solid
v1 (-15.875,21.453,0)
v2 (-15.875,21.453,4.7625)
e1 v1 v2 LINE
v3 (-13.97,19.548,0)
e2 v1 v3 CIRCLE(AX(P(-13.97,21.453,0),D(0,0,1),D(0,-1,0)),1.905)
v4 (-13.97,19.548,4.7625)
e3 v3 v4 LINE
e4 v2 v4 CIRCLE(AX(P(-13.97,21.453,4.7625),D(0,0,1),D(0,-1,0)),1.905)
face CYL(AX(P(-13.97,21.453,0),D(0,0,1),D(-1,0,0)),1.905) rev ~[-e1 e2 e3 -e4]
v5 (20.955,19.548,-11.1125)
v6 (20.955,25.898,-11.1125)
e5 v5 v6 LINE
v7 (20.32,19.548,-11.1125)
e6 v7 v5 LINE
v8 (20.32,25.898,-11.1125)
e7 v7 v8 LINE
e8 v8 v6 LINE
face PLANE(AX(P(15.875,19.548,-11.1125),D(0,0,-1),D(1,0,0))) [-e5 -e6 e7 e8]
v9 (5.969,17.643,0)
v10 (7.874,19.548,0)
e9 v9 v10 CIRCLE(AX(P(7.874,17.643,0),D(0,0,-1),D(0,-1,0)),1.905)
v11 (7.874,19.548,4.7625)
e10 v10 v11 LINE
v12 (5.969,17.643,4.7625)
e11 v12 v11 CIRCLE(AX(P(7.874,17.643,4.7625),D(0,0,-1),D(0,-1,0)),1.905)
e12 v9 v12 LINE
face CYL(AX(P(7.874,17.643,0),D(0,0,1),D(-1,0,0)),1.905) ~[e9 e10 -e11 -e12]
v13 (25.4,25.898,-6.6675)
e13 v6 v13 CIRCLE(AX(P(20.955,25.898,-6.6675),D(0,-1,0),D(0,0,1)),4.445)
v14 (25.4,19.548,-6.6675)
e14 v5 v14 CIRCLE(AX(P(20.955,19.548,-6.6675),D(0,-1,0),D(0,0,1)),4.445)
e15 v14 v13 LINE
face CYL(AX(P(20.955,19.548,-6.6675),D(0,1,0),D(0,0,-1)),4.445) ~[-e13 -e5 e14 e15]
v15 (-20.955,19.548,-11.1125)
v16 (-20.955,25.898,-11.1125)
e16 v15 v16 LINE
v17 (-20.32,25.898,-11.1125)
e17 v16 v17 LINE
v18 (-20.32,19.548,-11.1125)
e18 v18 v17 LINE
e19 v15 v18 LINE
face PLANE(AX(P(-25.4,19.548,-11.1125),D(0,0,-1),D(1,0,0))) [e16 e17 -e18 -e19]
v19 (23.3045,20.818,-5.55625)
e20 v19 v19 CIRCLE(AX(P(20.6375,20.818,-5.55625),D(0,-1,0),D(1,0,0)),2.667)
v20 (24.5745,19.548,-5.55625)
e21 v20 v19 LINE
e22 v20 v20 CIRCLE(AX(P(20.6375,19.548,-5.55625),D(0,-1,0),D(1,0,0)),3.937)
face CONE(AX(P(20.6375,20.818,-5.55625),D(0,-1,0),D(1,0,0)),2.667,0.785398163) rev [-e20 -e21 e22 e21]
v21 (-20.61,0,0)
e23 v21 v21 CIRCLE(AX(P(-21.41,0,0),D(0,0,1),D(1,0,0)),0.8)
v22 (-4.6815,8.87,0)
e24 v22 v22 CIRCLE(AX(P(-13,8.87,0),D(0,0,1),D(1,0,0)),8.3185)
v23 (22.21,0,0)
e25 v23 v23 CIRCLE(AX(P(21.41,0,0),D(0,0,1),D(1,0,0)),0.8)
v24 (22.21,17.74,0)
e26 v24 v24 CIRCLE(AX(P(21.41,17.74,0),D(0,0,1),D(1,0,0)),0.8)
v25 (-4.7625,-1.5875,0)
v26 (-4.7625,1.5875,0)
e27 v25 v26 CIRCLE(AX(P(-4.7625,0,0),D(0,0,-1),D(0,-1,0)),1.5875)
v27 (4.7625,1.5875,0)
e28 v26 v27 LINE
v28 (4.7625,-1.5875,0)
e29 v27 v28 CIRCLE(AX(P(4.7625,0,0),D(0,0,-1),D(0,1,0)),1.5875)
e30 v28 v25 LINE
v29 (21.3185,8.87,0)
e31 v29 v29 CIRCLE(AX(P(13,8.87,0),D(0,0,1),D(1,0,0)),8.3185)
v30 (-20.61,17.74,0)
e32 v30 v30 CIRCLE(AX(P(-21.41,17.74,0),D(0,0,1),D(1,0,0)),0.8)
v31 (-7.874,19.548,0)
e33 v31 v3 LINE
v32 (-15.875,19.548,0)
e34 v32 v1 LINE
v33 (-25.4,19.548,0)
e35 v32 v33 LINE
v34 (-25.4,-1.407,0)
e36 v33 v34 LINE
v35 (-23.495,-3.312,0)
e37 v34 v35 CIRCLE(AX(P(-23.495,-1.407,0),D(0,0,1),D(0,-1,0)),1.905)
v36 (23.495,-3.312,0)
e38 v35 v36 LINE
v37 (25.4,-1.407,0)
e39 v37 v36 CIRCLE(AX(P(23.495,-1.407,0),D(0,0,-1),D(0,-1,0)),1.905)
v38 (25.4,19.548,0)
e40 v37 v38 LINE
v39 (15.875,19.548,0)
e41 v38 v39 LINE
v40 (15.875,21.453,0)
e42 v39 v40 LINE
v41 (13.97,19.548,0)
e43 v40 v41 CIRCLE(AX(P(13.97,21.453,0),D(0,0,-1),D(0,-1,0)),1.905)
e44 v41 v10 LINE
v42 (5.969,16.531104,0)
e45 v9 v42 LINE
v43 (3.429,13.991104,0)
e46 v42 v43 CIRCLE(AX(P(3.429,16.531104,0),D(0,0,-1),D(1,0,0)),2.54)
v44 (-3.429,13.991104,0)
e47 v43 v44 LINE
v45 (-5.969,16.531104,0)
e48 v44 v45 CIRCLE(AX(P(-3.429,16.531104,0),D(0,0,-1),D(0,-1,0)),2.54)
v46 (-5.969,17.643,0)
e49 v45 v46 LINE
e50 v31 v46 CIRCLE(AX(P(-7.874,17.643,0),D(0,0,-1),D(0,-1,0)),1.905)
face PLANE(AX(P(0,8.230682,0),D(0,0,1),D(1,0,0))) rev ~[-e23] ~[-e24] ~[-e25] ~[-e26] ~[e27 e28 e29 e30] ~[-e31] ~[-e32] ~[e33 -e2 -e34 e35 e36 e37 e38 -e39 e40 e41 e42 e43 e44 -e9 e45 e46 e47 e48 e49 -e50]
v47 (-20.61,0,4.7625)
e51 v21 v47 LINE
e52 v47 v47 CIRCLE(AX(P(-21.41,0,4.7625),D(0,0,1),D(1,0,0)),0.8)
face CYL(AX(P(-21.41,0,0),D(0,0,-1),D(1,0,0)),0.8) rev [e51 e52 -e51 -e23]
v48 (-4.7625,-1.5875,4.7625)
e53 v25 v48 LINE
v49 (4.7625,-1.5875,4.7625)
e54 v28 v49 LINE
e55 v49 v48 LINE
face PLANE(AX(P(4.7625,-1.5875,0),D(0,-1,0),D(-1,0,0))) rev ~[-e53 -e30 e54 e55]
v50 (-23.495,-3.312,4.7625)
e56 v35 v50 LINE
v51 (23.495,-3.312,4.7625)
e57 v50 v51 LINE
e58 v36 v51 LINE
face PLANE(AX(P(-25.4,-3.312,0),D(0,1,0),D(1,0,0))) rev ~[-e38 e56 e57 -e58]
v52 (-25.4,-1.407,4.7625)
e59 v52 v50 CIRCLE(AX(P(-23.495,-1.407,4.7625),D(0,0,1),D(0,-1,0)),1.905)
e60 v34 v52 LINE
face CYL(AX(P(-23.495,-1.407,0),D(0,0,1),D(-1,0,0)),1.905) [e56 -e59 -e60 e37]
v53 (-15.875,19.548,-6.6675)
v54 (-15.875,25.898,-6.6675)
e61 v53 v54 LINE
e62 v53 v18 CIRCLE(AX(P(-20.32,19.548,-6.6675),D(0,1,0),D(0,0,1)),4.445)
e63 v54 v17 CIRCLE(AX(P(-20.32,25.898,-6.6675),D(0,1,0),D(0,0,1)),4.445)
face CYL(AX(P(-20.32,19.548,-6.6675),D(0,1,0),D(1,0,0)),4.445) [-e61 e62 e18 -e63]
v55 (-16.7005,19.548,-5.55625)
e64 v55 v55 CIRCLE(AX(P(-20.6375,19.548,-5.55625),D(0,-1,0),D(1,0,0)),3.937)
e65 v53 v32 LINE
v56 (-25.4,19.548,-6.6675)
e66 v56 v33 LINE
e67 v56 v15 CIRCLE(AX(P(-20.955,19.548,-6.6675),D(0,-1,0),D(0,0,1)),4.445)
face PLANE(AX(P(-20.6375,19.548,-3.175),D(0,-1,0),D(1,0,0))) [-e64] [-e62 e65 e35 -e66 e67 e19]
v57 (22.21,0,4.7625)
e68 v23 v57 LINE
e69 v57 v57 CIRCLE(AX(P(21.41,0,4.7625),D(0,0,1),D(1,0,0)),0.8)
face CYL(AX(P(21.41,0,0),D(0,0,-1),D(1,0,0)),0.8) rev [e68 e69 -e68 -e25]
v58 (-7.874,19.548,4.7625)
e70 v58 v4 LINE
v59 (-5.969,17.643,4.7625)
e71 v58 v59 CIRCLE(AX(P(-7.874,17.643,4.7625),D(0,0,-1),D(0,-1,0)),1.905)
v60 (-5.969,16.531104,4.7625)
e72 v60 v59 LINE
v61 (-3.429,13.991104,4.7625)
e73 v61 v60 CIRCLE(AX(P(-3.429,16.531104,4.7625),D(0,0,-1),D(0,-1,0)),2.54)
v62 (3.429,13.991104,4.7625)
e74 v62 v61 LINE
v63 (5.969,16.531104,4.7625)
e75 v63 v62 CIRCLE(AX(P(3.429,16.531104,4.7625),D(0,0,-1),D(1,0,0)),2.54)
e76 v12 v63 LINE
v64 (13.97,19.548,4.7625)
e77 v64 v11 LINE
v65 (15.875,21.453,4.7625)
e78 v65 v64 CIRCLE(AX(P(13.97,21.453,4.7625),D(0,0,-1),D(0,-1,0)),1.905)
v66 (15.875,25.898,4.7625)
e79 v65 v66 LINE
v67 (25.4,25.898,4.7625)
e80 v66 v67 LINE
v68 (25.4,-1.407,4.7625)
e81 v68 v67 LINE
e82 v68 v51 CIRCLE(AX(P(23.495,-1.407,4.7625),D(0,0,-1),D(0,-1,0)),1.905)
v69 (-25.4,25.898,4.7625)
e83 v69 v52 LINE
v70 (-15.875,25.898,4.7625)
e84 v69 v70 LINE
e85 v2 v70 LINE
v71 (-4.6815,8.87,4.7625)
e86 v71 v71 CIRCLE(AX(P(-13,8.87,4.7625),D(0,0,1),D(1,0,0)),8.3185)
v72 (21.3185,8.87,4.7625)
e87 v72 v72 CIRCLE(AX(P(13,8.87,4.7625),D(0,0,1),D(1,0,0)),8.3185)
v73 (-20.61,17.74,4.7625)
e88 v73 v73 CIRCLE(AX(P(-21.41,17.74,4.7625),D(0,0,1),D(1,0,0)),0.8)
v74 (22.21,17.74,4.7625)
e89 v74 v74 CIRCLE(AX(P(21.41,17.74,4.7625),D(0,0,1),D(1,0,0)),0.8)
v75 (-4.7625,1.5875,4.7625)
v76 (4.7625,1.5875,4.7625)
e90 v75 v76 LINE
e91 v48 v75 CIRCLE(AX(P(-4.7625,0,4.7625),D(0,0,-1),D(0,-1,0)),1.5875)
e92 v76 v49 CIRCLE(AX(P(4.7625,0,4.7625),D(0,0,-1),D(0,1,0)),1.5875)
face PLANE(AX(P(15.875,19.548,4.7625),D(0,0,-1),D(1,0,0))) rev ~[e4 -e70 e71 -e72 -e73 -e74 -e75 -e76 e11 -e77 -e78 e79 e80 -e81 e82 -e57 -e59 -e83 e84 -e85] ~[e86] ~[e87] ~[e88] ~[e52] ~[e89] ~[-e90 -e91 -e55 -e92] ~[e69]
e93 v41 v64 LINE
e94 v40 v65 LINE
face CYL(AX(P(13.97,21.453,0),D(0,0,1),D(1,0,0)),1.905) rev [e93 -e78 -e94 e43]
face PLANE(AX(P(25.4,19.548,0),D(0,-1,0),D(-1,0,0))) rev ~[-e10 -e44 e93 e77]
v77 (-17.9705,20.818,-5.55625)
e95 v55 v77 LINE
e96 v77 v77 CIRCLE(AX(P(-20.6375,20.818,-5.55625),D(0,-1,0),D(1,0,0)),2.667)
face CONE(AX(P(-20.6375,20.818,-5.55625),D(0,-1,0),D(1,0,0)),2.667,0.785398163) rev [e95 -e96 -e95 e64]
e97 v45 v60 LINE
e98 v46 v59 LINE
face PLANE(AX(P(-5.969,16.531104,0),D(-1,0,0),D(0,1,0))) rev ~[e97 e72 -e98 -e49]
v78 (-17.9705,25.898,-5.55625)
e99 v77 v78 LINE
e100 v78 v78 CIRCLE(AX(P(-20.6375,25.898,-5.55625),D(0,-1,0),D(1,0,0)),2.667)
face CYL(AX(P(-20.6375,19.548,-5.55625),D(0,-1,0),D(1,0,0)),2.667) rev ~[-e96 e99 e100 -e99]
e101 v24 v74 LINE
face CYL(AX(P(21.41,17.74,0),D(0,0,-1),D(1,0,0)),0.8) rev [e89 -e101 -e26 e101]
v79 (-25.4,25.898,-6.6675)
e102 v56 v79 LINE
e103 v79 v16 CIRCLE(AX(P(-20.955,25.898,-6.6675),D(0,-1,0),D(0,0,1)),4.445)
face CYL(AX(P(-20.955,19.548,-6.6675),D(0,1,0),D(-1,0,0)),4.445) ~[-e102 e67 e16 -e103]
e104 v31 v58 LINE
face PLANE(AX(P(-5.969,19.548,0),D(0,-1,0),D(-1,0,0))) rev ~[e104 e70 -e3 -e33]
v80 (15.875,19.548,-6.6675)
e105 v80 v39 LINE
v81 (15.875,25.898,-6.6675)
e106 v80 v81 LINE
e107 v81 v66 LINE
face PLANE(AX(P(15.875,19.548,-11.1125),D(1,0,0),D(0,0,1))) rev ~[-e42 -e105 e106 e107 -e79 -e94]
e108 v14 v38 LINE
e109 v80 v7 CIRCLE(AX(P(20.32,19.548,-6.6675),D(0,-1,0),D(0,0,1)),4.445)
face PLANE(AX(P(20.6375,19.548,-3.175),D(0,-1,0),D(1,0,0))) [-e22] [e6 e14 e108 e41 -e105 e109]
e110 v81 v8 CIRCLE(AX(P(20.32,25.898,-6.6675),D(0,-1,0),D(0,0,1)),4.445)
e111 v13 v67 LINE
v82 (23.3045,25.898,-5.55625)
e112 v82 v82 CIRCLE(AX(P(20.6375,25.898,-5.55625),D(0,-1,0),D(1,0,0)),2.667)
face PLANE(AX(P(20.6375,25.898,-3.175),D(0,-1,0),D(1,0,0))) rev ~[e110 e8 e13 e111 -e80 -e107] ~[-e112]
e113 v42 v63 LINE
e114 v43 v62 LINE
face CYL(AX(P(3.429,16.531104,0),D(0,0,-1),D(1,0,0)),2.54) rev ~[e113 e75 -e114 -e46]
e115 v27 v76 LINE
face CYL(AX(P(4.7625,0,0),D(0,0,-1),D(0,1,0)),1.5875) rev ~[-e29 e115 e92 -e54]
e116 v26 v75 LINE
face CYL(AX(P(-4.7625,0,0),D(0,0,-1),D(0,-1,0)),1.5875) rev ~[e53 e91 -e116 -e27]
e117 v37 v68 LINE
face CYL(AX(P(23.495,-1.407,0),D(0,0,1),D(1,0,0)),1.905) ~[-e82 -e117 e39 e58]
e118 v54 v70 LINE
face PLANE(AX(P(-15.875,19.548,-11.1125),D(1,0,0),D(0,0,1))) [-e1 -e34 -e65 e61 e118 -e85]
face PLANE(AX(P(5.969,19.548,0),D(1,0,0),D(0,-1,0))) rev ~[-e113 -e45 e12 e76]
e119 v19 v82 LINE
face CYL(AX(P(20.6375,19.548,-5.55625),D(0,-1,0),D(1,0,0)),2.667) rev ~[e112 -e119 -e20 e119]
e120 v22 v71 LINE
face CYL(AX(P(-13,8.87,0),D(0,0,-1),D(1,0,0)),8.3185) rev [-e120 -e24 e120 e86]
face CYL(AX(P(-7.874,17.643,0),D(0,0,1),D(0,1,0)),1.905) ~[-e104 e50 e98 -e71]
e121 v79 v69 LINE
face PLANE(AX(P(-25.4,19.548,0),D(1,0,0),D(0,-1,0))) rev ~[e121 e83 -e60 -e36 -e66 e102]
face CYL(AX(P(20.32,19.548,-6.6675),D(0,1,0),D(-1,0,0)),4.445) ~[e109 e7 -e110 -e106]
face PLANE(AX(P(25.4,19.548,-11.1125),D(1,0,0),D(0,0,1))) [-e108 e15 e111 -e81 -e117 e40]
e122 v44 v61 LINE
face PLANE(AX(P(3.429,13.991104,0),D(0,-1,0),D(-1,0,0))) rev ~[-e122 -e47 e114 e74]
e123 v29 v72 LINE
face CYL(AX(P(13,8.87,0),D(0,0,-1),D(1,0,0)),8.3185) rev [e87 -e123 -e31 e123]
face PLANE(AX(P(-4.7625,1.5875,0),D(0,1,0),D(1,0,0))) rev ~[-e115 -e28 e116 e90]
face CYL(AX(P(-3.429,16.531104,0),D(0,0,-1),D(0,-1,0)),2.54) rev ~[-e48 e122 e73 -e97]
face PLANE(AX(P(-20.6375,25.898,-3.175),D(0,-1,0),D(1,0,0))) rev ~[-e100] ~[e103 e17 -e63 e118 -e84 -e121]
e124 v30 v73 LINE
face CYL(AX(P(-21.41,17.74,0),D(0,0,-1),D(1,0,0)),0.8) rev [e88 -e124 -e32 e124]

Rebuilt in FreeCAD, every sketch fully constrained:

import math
import FreeCAD as App
import Part
import Sketcher
from FreeCAD import Vector
Q = App.Units.Quantity


def edges_at(feature, points):
    """Names of the edges that pass closest to the given points."""
    edges = feature.Shape.Edges
    near = lambda p: min(range(len(edges)), key=lambda i: edges[i].distToShape(Part.Vertex(*p))[0])
    return sorted({f"Edge{near(p) + 1}" for p in points})


def add_polygon(sketch, points):
    """Adds a closed chain of lines whose ends are joined by coincident constraints."""
    first, n = sketch.GeometryCount, len(points)
    for a, b in zip(points, points[1:] + points[:1]):
        sketch.addGeometry(Part.LineSegment(App.Vector(*a, 0), App.Vector(*b, 0)), False)
    for i in range(n):
        sketch.addConstraint(Sketcher.Constraint("Coincident", first + i, 2, first + (i + 1) % n, 1))

doc = App.newDocument("Part")
body = doc.addObject("PartDesign::Body", "Body")

# Sketch on XY plane
sketch1 = doc.addObject("Sketcher::SketchObject", "Sketch")
body.addObject(sketch1)
sketch1.AttachmentSupport = (doc.XY_Plane, [""])
sketch1.MapMode = "FlatFace"
sketch1.addGeometry(Part.LineSegment(Vector(5.969, 19.548, 0), Vector(5.969, 16.531104, 0)), False)
sketch1.addGeometry(Part.ArcOfCircle(Part.Circle(Vector(3.429, 16.531104, 0), Vector(0, 0, 1), 2.54), math.radians(-90), math.radians(0)), False)
sketch1.addGeometry(Part.LineSegment(Vector(3.429, 13.991104, 0), Vector(-3.429, 13.991104, 0)), False)
sketch1.addGeometry(Part.ArcOfCircle(Part.Circle(Vector(-3.429, 16.531104, 0), Vector(0, 0, 1), 2.54), math.radians(-180), math.radians(-90)), False)
sketch1.addGeometry(Part.LineSegment(Vector(-5.969, 16.531104, 0), Vector(-5.969, 19.548, 0)), False)
sketch1.addGeometry(Part.LineSegment(Vector(-5.969, 19.548, 0), Vector(-25.4, 19.548, 0)), False)
sketch1.addGeometry(Part.LineSegment(Vector(-25.4, 19.548, 0), Vector(-25.4, -3.312, 0)), False)
sketch1.addGeometry(Part.LineSegment(Vector(-25.4, -3.312, 0), Vector(25.4, -3.312, 0)), False)
sketch1.addGeometry(Part.LineSegment(Vector(25.4, -3.312, 0), Vector(25.4, 19.548, 0)), False)
sketch1.addGeometry(Part.LineSegment(Vector(25.4, 19.548, 0), Vector(5.969, 19.548, 0)), False)
sketch1.addGeometry(Part.Circle(Vector(-21.41, 0, 0), Vector(0, 0, 1), 0.8), False)
sketch1.addGeometry(Part.ArcOfCircle(Part.Circle(Vector(-4.7625, 0, 0), Vector(0, 0, 1), 1.5875), math.radians(90), math.radians(270)), False)
sketch1.addGeometry(Part.LineSegment(Vector(-4.7625, 1.5875, 0), Vector(4.7625, 1.5875, 0)), False)
sketch1.addGeometry(Part.ArcOfCircle(Part.Circle(Vector(4.7625, 0, 0), Vector(0, 0, 1), 1.5875), math.radians(-90), math.radians(90)), False)
sketch1.addGeometry(Part.LineSegment(Vector(4.7625, -1.5875, 0), Vector(-4.7625, -1.5875, 0)), False)
sketch1.addGeometry(Part.Circle(Vector(21.41, 0, 0), Vector(0, 0, 1), 0.8), False)
sketch1.addGeometry(Part.Circle(Vector(-13, 8.87, 0), Vector(0, 0, 1), 8.3185), False)
sketch1.addGeometry(Part.Circle(Vector(-21.41, 17.74, 0), Vector(0, 0, 1), 0.8), False)
sketch1.addGeometry(Part.Circle(Vector(13, 8.87, 0), Vector(0, 0, 1), 8.3185), False)
sketch1.addGeometry(Part.Circle(Vector(21.41, 17.74, 0), Vector(0, 0, 1), 0.8), False)
sketch1.addConstraint(Sketcher.Constraint("Tangent", 0, 2, 1, 2))
sketch1.addConstraint(Sketcher.Constraint("Tangent", 1, 1, 2, 1))
sketch1.addConstraint(Sketcher.Constraint("Tangent", 2, 2, 3, 2))
sketch1.addConstraint(Sketcher.Constraint("Tangent", 3, 1, 4, 1))
sketch1.addConstraint(Sketcher.Constraint("Coincident", 4, 2, 5, 1))
sketch1.addConstraint(Sketcher.Constraint("Coincident", 5, 2, 6, 1))
sketch1.addConstraint(Sketcher.Constraint("Coincident", 6, 2, 7, 1))
sketch1.addConstraint(Sketcher.Constraint("Coincident", 7, 2, 8, 1))
sketch1.addConstraint(Sketcher.Constraint("Coincident", 8, 2, 9, 1))
sketch1.addConstraint(Sketcher.Constraint("Coincident", 9, 2, 0, 1))
sketch1.addConstraint(Sketcher.Constraint("Tangent", 11, 1, 12, 1))
sketch1.addConstraint(Sketcher.Constraint("Tangent", 12, 2, 13, 2))
sketch1.addConstraint(Sketcher.Constraint("Tangent", 13, 1, 14, 1))
sketch1.addConstraint(Sketcher.Constraint("Tangent", 14, 2, 11, 2))
sketch1.addConstraint(Sketcher.Constraint("Vertical", 0))
sketch1.addConstraint(Sketcher.Constraint("Horizontal", 2))
sketch1.addConstraint(Sketcher.Constraint("Vertical", 4))
sketch1.addConstraint(Sketcher.Constraint("Horizontal", 5))
sketch1.addConstraint(Sketcher.Constraint("Vertical", 6))
sketch1.addConstraint(Sketcher.Constraint("Horizontal", 7))
sketch1.addConstraint(Sketcher.Constraint("Vertical", 8))
sketch1.addConstraint(Sketcher.Constraint("Horizontal", 9))
sketch1.addConstraint(Sketcher.Constraint("Horizontal", 12))
sketch1.addConstraint(Sketcher.Constraint("Horizontal", 14))
sketch1.addConstraint(Sketcher.Constraint("Equal", 1, 3))
sketch1.addConstraint(Sketcher.Constraint("Equal", 10, 15))
sketch1.addConstraint(Sketcher.Constraint("Equal", 15, 17))
sketch1.addConstraint(Sketcher.Constraint("Equal", 16, 18))
sketch1.addConstraint(Sketcher.Constraint("Equal", 17, 19))
sketch1.addConstraint(Sketcher.Constraint("Symmetric", 11, 3, 13, 3, -1, 1))
sketch1.addConstraint(Sketcher.Constraint("Symmetric", 10, 3, 15, 3, -1, 1))
sketch1.addConstraint(Sketcher.Constraint("Symmetric", 16, 3, 18, 3, -2))
sketch1.addConstraint(Sketcher.Constraint("Symmetric", 17, 3, 19, 3, -2))
sketch1.addConstraint(Sketcher.Constraint("Symmetric", 5, 2, 8, 2, -2))
sketch1.addConstraint(Sketcher.Constraint("PointOnObject", 10, 3, -1))
sketch1.addConstraint(Sketcher.Constraint("Vertical", 10, 3, 17, 3))
sketch1.addConstraint(Sketcher.Constraint("Equal", 5, 9))
sketch1.addConstraint(Sketcher.Constraint("Radius", 1, Q("0.1 in")))
sketch1.addConstraint(Sketcher.Constraint("DistanceX", 7, 1, 7, 2, Q("2 in")))
sketch1.addConstraint(Sketcher.Constraint("Diameter", 16, Q("0.655 in")))
sketch1.addConstraint(Sketcher.Constraint("DistanceY", 6, 2, 6, 1, Q("0.9 in")))
sketch1.addConstraint(Sketcher.Constraint("Radius", 11, Q("0.0625 in")))
sketch1.addConstraint(Sketcher.Constraint("DistanceX", 2, 2, 2, 1, Q("0.27 in")))
sketch1.addConstraint(Sketcher.Constraint("Diameter", 10, Q("1.6 mm")))
sketch1.addConstraint(Sketcher.Constraint("DistanceX", 12, 1, 12, 2, Q("0.375 in")))
sketch1.addConstraint(Sketcher.Constraint("DistanceX", 10, 3, -1, 1, Q("21.41 mm")))
sketch1.addConstraint(Sketcher.Constraint("DistanceX", 16, 3, -1, 1, Q("13 mm")))
sketch1.addConstraint(Sketcher.Constraint("DistanceY", -1, 1, 16, 3, Q("8.87 mm")))
sketch1.addConstraint(Sketcher.Constraint("DistanceY", -1, 1, 17, 3, Q("17.74 mm")))
sketch1.addConstraint(Sketcher.Constraint("DistanceY", -1, 1, 4, 2, Q("19.548 mm")))
sketch1.addConstraint(Sketcher.Constraint("DistanceY", 0, 2, 0, 1, Q("3.016896 mm")))
pad1 = doc.addObject("PartDesign::Pad", "Pad")
body.addObject(pad1)
pad1.Profile = sketch1
pad1.Length = Q("0.1875 in")

# Sketch on XZ plane
sketch2 = doc.addObject("Sketcher::SketchObject", "Sketch001")
body.addObject(sketch2)
sketch2.AttachmentSupport = (doc.XZ_Plane, [""])
sketch2.MapMode = "FlatFace"
sketch2.AttachmentOffset = App.Placement(Vector(0, 0, -19.548), App.Rotation())
add_polygon(sketch2, [(15.875, 4.7625), (15.875, -11.1125), (25.4, -11.1125), (25.4, 4.7625)])  # lines 0-3
add_polygon(sketch2, [(-25.4, 4.7625), (-25.4, -11.1125), (-15.875, -11.1125), (-15.875, 4.7625)])  # lines 4-7
sketch2.addConstraint(Sketcher.Constraint("Vertical", 0))
sketch2.addConstraint(Sketcher.Constraint("Horizontal", 1))
sketch2.addConstraint(Sketcher.Constraint("Vertical", 2))
sketch2.addConstraint(Sketcher.Constraint("Horizontal", 3))
sketch2.addConstraint(Sketcher.Constraint("Vertical", 4))
sketch2.addConstraint(Sketcher.Constraint("Horizontal", 5))
sketch2.addConstraint(Sketcher.Constraint("Vertical", 6))
sketch2.addConstraint(Sketcher.Constraint("Horizontal", 7))
sketch2.addConstraint(Sketcher.Constraint("Symmetric", 1, 2, 4, 2, -2))
sketch2.addConstraint(Sketcher.Constraint("Symmetric", 3, 2, 6, 2, -2))
sketch2.addConstraint(Sketcher.Constraint("DistanceX", -1, 1, 1, 2, Q("1 in")))
sketch2.addConstraint(Sketcher.Constraint("DistanceX", 1, 1, 1, 2, Q("0.375 in")))
sketch2.addConstraint(Sketcher.Constraint("DistanceY", 0, 2, 0, 1, Q("0.625 in")))
sketch2.addConstraint(Sketcher.Constraint("DistanceY", 0, 2, -1, 1, Q("0.4375 in")))
pad2 = doc.addObject("PartDesign::Pad", "Pad001")
body.addObject(pad2)
pad2.Profile = sketch2
pad2.Length = Q("0.25 in")
pad2.Reversed = True
doc.recompute()

fillet = doc.addObject("PartDesign::Fillet", "Fillet")
body.addObject(fillet)
fillet.Base = (pad2, edges_at(pad2, [
    (25.4, -3.312, 2.381),
    (-25.4, -3.312, 2.381),
    (-5.969, 19.548, 2.381),
    (5.969, 19.548, 2.381),
    (15.875, 19.548, 2.381),
    (-15.875, 19.548, 2.381),
]))
fillet.Radius = Q("0.075 in")

# Sketch on XZ plane
sketch3 = doc.addObject("Sketcher::SketchObject", "Sketch002")
body.addObject(sketch3)
sketch3.AttachmentSupport = (doc.XZ_Plane, [""])
sketch3.MapMode = "FlatFace"
sketch3.AttachmentOffset = App.Placement(Vector(0, 0, -19.548), App.Rotation())
sketch3.addGeometry(Part.Circle(Vector(-20.6375, -5.55625, 0), Vector(0, 0, 1), 2.667), False)
sketch3.addGeometry(Part.Circle(Vector(20.6375, -5.55625, 0), Vector(0, 0, 1), 2.667), False)
sketch3.addConstraint(Sketcher.Constraint("Equal", 0, 1))
sketch3.addConstraint(Sketcher.Constraint("Symmetric", 0, 3, 1, 3, -2))
sketch3.addConstraint(Sketcher.Constraint("Diameter", 0, Q("0.21 in")))
sketch3.addConstraint(Sketcher.Constraint("DistanceX", 0, 3, -1, 1, Q("0.8125 in")))
sketch3.addConstraint(Sketcher.Constraint("DistanceY", 0, 3, -1, 1, Q("0.21875 in")))
pocket1 = doc.addObject("PartDesign::Pocket", "Pocket")
body.addObject(pocket1)
pocket1.Profile = sketch3
pocket1.Type = "ThroughAll"
doc.recompute()

fillet2 = doc.addObject("PartDesign::Fillet", "Fillet001")
body.addObject(fillet2)
fillet2.Base = (pocket1, edges_at(pocket1, [
    (25.4, 22.723, -11.113),
    (15.875, 22.723, -11.113),
    (-15.875, 22.723, -11.113),
    (-25.4, 22.723, -11.113),
]))
fillet2.Radius = Q("0.175 in")
doc.recompute()

chamfer = doc.addObject("PartDesign::Chamfer", "Chamfer")
body.addObject(chamfer)
chamfer.Base = (fillet2, edges_at(fillet2, [(-23.305, 19.548, -5.556), (17.971, 19.548, -5.556)]))
chamfer.Size = Q("0.05 in")

doc.recompute()
